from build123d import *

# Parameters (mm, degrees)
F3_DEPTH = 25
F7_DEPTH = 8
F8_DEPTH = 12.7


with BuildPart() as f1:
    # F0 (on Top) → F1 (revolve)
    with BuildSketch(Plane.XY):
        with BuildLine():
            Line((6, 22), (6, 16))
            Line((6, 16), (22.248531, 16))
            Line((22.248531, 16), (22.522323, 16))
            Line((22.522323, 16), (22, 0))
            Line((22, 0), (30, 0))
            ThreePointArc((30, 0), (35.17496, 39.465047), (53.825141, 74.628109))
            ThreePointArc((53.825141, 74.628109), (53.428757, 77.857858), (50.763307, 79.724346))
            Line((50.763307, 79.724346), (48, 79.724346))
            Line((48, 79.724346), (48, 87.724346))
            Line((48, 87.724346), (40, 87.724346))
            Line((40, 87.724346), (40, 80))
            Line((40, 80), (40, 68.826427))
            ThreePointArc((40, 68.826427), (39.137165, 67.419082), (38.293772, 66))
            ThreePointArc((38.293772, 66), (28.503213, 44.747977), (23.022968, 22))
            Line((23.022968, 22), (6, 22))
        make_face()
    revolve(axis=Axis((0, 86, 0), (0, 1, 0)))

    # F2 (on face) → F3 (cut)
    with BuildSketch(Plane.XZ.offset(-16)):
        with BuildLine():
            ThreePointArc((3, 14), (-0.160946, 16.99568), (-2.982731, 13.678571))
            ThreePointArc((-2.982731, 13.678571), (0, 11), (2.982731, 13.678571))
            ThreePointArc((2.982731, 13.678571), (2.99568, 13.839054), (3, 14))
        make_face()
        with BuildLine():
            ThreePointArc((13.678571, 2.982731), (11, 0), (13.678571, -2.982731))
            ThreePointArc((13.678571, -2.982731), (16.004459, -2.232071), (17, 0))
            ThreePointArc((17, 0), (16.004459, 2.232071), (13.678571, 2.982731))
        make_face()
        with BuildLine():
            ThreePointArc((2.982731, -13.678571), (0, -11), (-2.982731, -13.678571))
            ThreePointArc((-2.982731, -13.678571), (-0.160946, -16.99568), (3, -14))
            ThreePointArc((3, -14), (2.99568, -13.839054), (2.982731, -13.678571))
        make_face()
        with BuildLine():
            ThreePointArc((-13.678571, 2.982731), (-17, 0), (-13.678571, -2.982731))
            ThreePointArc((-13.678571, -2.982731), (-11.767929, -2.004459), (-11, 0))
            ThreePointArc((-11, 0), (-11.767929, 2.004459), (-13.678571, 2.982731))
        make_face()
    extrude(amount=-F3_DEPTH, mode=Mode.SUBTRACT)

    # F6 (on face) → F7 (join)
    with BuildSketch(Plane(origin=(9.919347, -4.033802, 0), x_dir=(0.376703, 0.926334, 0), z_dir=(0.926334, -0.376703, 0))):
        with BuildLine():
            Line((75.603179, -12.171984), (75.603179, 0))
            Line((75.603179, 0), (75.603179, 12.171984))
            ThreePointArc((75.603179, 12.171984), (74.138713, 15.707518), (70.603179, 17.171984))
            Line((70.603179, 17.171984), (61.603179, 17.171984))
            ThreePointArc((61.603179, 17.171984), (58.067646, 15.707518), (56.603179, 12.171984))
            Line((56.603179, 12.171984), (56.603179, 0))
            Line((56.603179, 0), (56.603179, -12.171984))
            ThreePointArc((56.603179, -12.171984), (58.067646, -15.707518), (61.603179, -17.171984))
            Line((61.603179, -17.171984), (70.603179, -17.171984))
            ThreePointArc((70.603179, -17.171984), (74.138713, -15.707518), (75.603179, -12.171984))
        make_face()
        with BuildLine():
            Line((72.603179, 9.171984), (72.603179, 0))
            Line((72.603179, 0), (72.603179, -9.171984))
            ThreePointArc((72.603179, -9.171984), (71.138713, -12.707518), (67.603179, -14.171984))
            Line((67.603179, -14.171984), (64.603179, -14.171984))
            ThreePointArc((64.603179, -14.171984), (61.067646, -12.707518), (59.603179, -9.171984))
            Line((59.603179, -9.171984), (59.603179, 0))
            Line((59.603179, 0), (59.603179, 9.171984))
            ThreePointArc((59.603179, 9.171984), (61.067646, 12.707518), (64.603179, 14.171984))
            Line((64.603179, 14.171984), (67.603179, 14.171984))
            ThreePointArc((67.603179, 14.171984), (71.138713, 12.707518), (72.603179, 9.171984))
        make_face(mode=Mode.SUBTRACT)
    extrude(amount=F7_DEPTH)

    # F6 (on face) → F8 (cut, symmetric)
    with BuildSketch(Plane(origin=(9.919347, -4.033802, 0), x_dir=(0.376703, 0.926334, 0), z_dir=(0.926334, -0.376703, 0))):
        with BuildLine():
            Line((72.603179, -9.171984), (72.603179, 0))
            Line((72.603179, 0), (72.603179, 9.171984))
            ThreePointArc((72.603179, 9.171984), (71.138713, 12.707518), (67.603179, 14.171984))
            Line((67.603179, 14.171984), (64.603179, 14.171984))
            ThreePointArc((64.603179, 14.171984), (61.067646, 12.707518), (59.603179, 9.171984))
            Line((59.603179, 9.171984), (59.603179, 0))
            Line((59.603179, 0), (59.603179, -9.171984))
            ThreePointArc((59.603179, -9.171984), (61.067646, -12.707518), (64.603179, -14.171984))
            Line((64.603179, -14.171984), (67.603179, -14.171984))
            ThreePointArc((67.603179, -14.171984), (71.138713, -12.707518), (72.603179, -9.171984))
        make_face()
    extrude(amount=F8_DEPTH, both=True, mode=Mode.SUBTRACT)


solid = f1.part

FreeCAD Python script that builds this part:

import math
import FreeCAD as App
import Part
import Sketcher

V = App.Vector
Q = App.Units.Quantity

doc = App.newDocument("Part")
body = doc.addObject("PartDesign::Body", "Body")

# Sketch on XY plane
sketch1 = doc.addObject("Sketcher::SketchObject", "Sketch")
body.addObject(sketch1)
sketch1.AttachmentSupport = (doc.XY_Plane, [""])
sketch1.MapMode = "FlatFace"
sketch1.addGeometry([
    Part.LineSegment(V(6, 22, 0), V(6, 16, 0)),  # 0
    Part.LineSegment(V(6, 16, 0), V(22.522323, 16, 0)),  # 1
    Part.LineSegment(V(22.522323, 16, 0), V(22, 0, 0)),  # 2
    Part.LineSegment(V(22, 0, 0), V(30, 0, 0)),  # 3
    Part.ArcOfCircle(Part.Circle(V(141.869616, 5.402611, 0), V(0, 0, 1), 111.999997), math.radians(141.823587), math.radians(182.764884)),  # 4
    Part.ArcOfCircle(Part.Circle(V(50.000001, 75.797852, 0), V(0, 0, 1), 3.999999), math.radians(-17.003835), math.radians(78.998976)),  # 5
    Part.LineSegment(V(50.763307, 79.724346, 0), V(48, 79.724346, 0)),  # 6
    Part.LineSegment(V(48, 79.724346, 0), V(48, 87.724346, 0)),  # 7
    Part.LineSegment(V(48, 87.724346, 0), V(40, 87.724346, 0)),  # 8
    Part.LineSegment(V(40, 87.724346, 0), V(40, 68.826427, 0)),  # 9
    Part.ArcOfCircle(Part.Circle(V(141.865597, 5.405053, 0), V(0, 0, 1), 119.995294), math.radians(148.093666), math.radians(149.670128)),  # 10
    Part.ArcOfCircle(Part.Circle(V(141.869592, 5.402619, 0), V(0, 0, 1), 119.999971), math.radians(149.670088), math.radians(172.049846)),  # 11
    Part.LineSegment(V(23.022968, 22, 0), V(6, 22, 0)),  # 12
], False)
sketch1.addConstraint([
    Sketcher.Constraint("Coincident", 0, 2, 1, 1),
    Sketcher.Constraint("Coincident", 1, 2, 2, 1),
    Sketcher.Constraint("Coincident", 2, 2, 3, 1),
    Sketcher.Constraint("Coincident", 3, 2, 4, 2),
    Sketcher.Constraint("Coincident", 4, 1, 5, 1),
    Sketcher.Constraint("Coincident", 5, 2, 6, 1),
    Sketcher.Constraint("Coincident", 6, 2, 7, 1),
    Sketcher.Constraint("Coincident", 7, 2, 8, 1),
    Sketcher.Constraint("Coincident", 8, 2, 9, 1),
    Sketcher.Constraint("Coincident", 9, 2, 10, 1),
    Sketcher.Constraint("Coincident", 10, 2, 11, 1),
    Sketcher.Constraint("Coincident", 11, 2, 12, 1),
    Sketcher.Constraint("Coincident", 12, 2, 0, 1),
    Sketcher.Constraint("Vertical", 0),
    Sketcher.Constraint("Horizontal", 1),
    Sketcher.Constraint("Horizontal", 3),
    Sketcher.Constraint("Horizontal", 6),
    Sketcher.Constraint("Vertical", 7),
    Sketcher.Constraint("Horizontal", 8),
    Sketcher.Constraint("Vertical", 9),
    Sketcher.Constraint("Horizontal", 12),
    Sketcher.Constraint("PointOnObject", 2, 2, -1),
    Sketcher.Constraint("Radius", 5, Q("3.999999 mm")),
    Sketcher.Constraint("DistanceX", 3, 1, 3, 2, Q("8 mm")),
    Sketcher.Constraint("DistanceX", 8, 2, 8, 1, Q("8 mm")),
    Sketcher.Constraint("DistanceY", 0, 2, 0, 1, Q("6 mm")),
    Sketcher.Constraint("DistanceY", 7, 1, 7, 2, Q("8 mm")),
    Sketcher.Constraint("DistanceX", -1, 1, 5, 3, Q("50.000001 mm")),
    Sketcher.Constraint("DistanceX", -1, 1, 0, 2, Q("6 mm")),
    Sketcher.Constraint("DistanceY", -1, 1, 0, 2, Q("16 mm")),
    Sketcher.Constraint("DistanceX", -1, 1, 2, 2, Q("22 mm")),
    Sketcher.Constraint("DistanceX", -1, 1, 6, 2, Q("48 mm")),
    Sketcher.Constraint("DistanceY", -1, 1, 10, 2, Q("66 mm")),
    Sketcher.Constraint("Radius", 11, Q("119.999971 mm")),
    Sketcher.Constraint("Radius", 4, Q("111.999997 mm")),
    Sketcher.Constraint("Radius", 10, Q("119.995294 mm")),
    Sketcher.Constraint("DistanceY", 9, 2, 9, 1, Q("18.897919 mm")),
    Sketcher.Constraint("DistanceY", 10, 3, 5, 3, Q("70.392799 mm")),
    Sketcher.Constraint("DistanceX", 1, 1, 1, 2, Q("16.522323 mm")),
    Sketcher.Constraint("DistanceX", 6, 2, 6, 1, Q("2.763307 mm")),
    Sketcher.Constraint("DistanceX", 12, 2, 12, 1, Q("17.022968 mm")),
    Sketcher.Constraint("DistanceY", -1, 1, 4, 3, Q("5.402611 mm")),
    Sketcher.Constraint("DistanceY", -1, 1, 5, 3, Q("75.797852 mm")),
])
revolution = doc.addObject("PartDesign::Revolution", "Revolution")
body.addObject(revolution)
revolution.Profile = sketch1
revolution.ReferenceAxis = (sketch1, ["V_Axis"])
revolution.Angle = 360

# Sketch on XZ plane
sketch2 = doc.addObject("Sketcher::SketchObject", "Sketch001")
body.addObject(sketch2)
sketch2.AttachmentSupport = (doc.XZ_Plane, [""])
sketch2.MapMode = "FlatFace"
sketch2.AttachmentOffset = App.Placement(V(0, 0, -16), App.Rotation())
sketch2.addGeometry([
    Part.ArcOfCircle(Part.Circle(V(0, 14, 0), V(0, 0, 1), 3), math.radians(0), math.radians(186)),  # 0
    Part.ArcOfCircle(Part.Circle(V(0, 14, 0), V(0, 0, 1), 3), math.radians(-174), math.radians(-6)),  # 1
    Part.ArcOfCircle(Part.Circle(V(0, 14, 0), V(0, 0, 1), 3), math.radians(-6.15), math.radians(0)),  # 2
    Part.ArcOfCircle(Part.Circle(V(14, 0, 0), V(0, 0, 1), 3), math.radians(96), math.radians(264)),  # 3
    Part.ArcOfCircle(Part.Circle(V(14, 0, 0), V(0, 0, 1), 3), math.radians(-96), math.radians(0)),  # 4
    Part.ArcOfCircle(Part.Circle(V(14, 0, 0), V(0, 0, 1), 3), math.radians(0), math.radians(96)),  # 5
    Part.ArcOfCircle(Part.Circle(V(0, -14, 0), V(0, 0, 1), 3), math.radians(6), math.radians(174)),  # 6
    Part.ArcOfCircle(Part.Circle(V(0, -14, 0), V(0, 0, 1), 3), math.radians(174), math.radians(360)),  # 7
    Part.ArcOfCircle(Part.Circle(V(0, -14, 0), V(0, 0, 1), 3), math.radians(0), math.radians(6.15)),  # 8
    Part.ArcOfCircle(Part.Circle(V(-14, 0, 0), V(0, 0, 1), 3), math.radians(84), math.radians(276)),  # 9
    Part.ArcOfCircle(Part.Circle(V(-14, 0, 0), V(0, 0, 1), 3), math.radians(-84), math.radians(0)),  # 10
    Part.ArcOfCircle(Part.Circle(V(-14, 0, 0), V(0, 0, 1), 3), math.radians(0), math.radians(84)),  # 11
], False)
sketch2.addConstraint([
    Sketcher.Constraint("Tangent", 0, 2, 1, 1),
    Sketcher.Constraint("Coincident", 1, 2, 2, 1),
    Sketcher.Constraint("Coincident", 2, 2, 0, 1),
    Sketcher.Constraint("Tangent", 3, 2, 4, 1),
    Sketcher.Constraint("Tangent", 4, 2, 5, 1),
    Sketcher.Constraint("Tangent", 5, 2, 3, 1),
    Sketcher.Constraint("Tangent", 6, 2, 7, 1),
    Sketcher.Constraint("Coincident", 7, 2, 8, 1),
    Sketcher.Constraint("Coincident", 8, 2, 6, 1),
    Sketcher.Constraint("Tangent", 9, 2, 10, 1),
    Sketcher.Constraint("Tangent", 10, 2, 11, 1),
    Sketcher.Constraint("Tangent", 11, 2, 9, 1),
    Sketcher.Constraint("Equal", 0, 1),
    Sketcher.Constraint("Equal", 1, 3),
    Sketcher.Constraint("Equal", 5, 6),
    Sketcher.Constraint("Equal", 6, 7),
    Sketcher.Constraint("Equal", 2, 8),
    Sketcher.Constraint("Equal", 7, 9),
    Sketcher.Constraint("Symmetric", 0, 3, 6, 3, -1, 1),
    Sketcher.Constraint("Symmetric", 3, 3, 9, 3, -1, 1),
    Sketcher.Constraint("Symmetric", 0, 2, 1, 2, -2),
    Sketcher.Constraint("Symmetric", 3, 2, 9, 2, -2),
    Sketcher.Constraint("PointOnObject", 4, 2, -1),
    Sketcher.Constraint("PointOnObject", 10, 2, -1),
    Sketcher.Constraint("Horizontal", 1, 3, 2, 2),
    Sketcher.Constraint("Horizontal", 6, 3, 7, 2),
    Sketcher.Constraint("Horizontal", 6, 2, 8, 2),
    Sketcher.Constraint("Horizontal", 5, 2, 11, 2),
    Sketcher.Constraint("Vertical", 3, 2, 5, 2),
    Sketcher.Constraint("Vertical", 0, 2, 6, 2),
    Sketcher.Constraint("Radius", 0, Q("3 mm")),
    Sketcher.Constraint("DistanceY", -1, 1, 0, 3, Q("14 mm")),
    Sketcher.Constraint("DistanceX", -1, 1, 3, 3, Q("14 mm")),
    Sketcher.Constraint("Radius", 2, Q("2.999784 mm")),
    Sketcher.Constraint("DistanceX", 0, 2, -1, 1, Q("2.982731 mm")),
    Sketcher.Constraint("DistanceX", -1, 1, 3, 2, Q("13.678571 mm")),
])
pocket1 = doc.addObject("PartDesign::Pocket", "Pocket")
body.addObject(pocket1)
pocket1.Profile = sketch2
pocket1.Length = 25

# Sketch on an angled plane
sketch3 = doc.addObject("Sketcher::SketchObject", "Sketch002")
body.addObject(sketch3)
sketch3.Placement = App.Placement(V(9.919347, -4.033802, 0), App.Rotation(V(0.376703032, 0.926334079, 0), V(0, 0, 1), V(0.926334079, -0.376703032, 0), "ZXY"))
sketch3.addGeometry([
    Part.LineSegment(V(75.6, -12.2, 0), V(75.6, 12.2, 0)),  # 0
    Part.ArcOfCircle(Part.Circle(V(70.6, 12.2, 0), V(0, 0, 1), 5), math.radians(0), math.radians(90)),  # 1
    Part.LineSegment(V(70.6, 17.2, 0), V(61.6, 17.2, 0)),  # 2
    Part.ArcOfCircle(Part.Circle(V(61.6, 12.2, 0), V(0, 0, 1), 5), math.radians(90), math.radians(180)),  # 3
    Part.LineSegment(V(56.6, 12.2, 0), V(56.6, -12.2, 0)),  # 4
    Part.ArcOfCircle(Part.Circle(V(61.6, -12.2, 0), V(0, 0, 1), 5), math.radians(-180), math.radians(-90)),  # 5
    Part.LineSegment(V(61.6, -17.2, 0), V(70.6, -17.2, 0)),  # 6
    Part.ArcOfCircle(Part.Circle(V(70.6, -12.2, 0), V(0, 0, 1), 5), math.radians(-90), math.radians(0)),  # 7
    Part.ArcOfCircle(Part.Circle(V(67.6, 9.2, 0), V(0, 0, 1), 5), math.radians(0), math.radians(90)),  # 8
    Part.LineSegment(V(72.6, 9.2, 0), V(72.6, -9.2, 0)),  # 9
    Part.ArcOfCircle(Part.Circle(V(67.6, -9.2, 0), V(0, 0, 1), 5), math.radians(-90), math.radians(0)),  # 10
    Part.LineSegment(V(67.6, -14.2, 0), V(64.6, -14.2, 0)),  # 11
    Part.ArcOfCircle(Part.Circle(V(64.6, -9.2, 0), V(0, 0, 1), 5), math.radians(-180), math.radians(-90)),  # 12
    Part.LineSegment(V(59.6, -9.2, 0), V(59.6, 9.2, 0)),  # 13
    Part.ArcOfCircle(Part.Circle(V(64.6, 9.2, 0), V(0, 0, 1), 5), math.radians(90), math.radians(180)),  # 14
    Part.LineSegment(V(64.6, 14.2, 0), V(67.6, 14.2, 0)),  # 15
], False)
sketch3.addConstraint([
    Sketcher.Constraint("Tangent", 0, 2, 1, 1),
    Sketcher.Constraint("Tangent", 1, 2, 2, 1),
    Sketcher.Constraint("Tangent", 2, 2, 3, 1),
    Sketcher.Constraint("Tangent", 3, 2, 4, 1),
    Sketcher.Constraint("Tangent", 4, 2, 5, 1),
    Sketcher.Constraint("Tangent", 5, 2, 6, 1),
    Sketcher.Constraint("Tangent", 6, 2, 7, 1),
    Sketcher.Constraint("Tangent", 7, 2, 0, 1),
    Sketcher.Constraint("Tangent", 8, 1, 9, 1),
    Sketcher.Constraint("Tangent", 9, 2, 10, 2),
    Sketcher.Constraint("Tangent", 10, 1, 11, 1),
    Sketcher.Constraint("Tangent", 11, 2, 12, 2),
    Sketcher.Constraint("Tangent", 12, 1, 13, 1),
    Sketcher.Constraint("Tangent", 13, 2, 14, 2),
    Sketcher.Constraint("Tangent", 14, 1, 15, 1),
    Sketcher.Constraint("Tangent", 15, 2, 8, 2),
    Sketcher.Constraint("Vertical", 0),
    Sketcher.Constraint("Horizontal", 2),
    Sketcher.Constraint("Vertical", 4),
    Sketcher.Constraint("Horizontal", 6),
    Sketcher.Constraint("Vertical", 9),
    Sketcher.Constraint("Horizontal", 11),
    Sketcher.Constraint("Vertical", 13),
    Sketcher.Constraint("Horizontal", 15),
    Sketcher.Constraint("Equal", 1, 3),
    Sketcher.Constraint("Equal", 3, 5),
    Sketcher.Constraint("Equal", 5, 7),
    Sketcher.Constraint("Equal", 7, 8),
    Sketcher.Constraint("Equal", 8, 10),
    Sketcher.Constraint("Equal", 10, 12),
    Sketcher.Constraint("Equal", 12, 14),
    Sketcher.Constraint("Radius", 1, Q("5 mm")),
    Sketcher.Constraint("DistanceX", 2, 2, 2, 1, Q("9 mm")),
    Sketcher.Constraint("DistanceX", 11, 2, 11, 1, Q("3 mm")),
    Sketcher.Constraint("DistanceX", 8, 3, 1, 3, Q("3 mm")),
    Sketcher.Constraint("DistanceY", 8, 3, 1, 3, Q("3 mm")),
    Sketcher.Constraint("DistanceY", 7, 3, 10, 3, Q("3 mm")),
    Sketcher.Constraint("DistanceY", 0, 1, 0, 2, Q("24.343968 mm")),
    Sketcher.Constraint("DistanceX", -1, 1, 1, 3, Q("70.603179 mm")),
    Sketcher.Constraint("DistanceY", -1, 1, 1, 3, Q("12.171984 mm")),
])
pad1 = doc.addObject("PartDesign::Pad", "Pad")
body.addObject(pad1)
pad1.Profile = sketch3
pad1.Length = 8

# Sketch on an angled plane
sketch4 = doc.addObject("Sketcher::SketchObject", "Sketch003")
body.addObject(sketch4)
sketch4.Placement = App.Placement(V(9.919347, -4.033802, 0), App.Rotation(V(0.376703032, 0.926334079, 0), V(0, 0, 1), V(0.926334079, -0.376703032, 0), "ZXY"))
sketch4.addGeometry([
    Part.LineSegment(V(72.6, -9.2, 0), V(72.6, 9.2, 0)),  # 0
    Part.ArcOfCircle(Part.Circle(V(67.6, 9.2, 0), V(0, 0, 1), 5), math.radians(0), math.radians(90)),  # 1
    Part.LineSegment(V(67.6, 14.2, 0), V(64.6, 14.2, 0)),  # 2
    Part.ArcOfCircle(Part.Circle(V(64.6, 9.2, 0), V(0, 0, 1), 5), math.radians(90), math.radians(180)),  # 3
    Part.LineSegment(V(59.6, 9.2, 0), V(59.6, -9.2, 0)),  # 4
    Part.ArcOfCircle(Part.Circle(V(64.6, -9.2, 0), V(0, 0, 1), 5), math.radians(-180), math.radians(-90)),  # 5
    Part.LineSegment(V(64.6, -14.2, 0), V(67.6, -14.2, 0)),  # 6
    Part.ArcOfCircle(Part.Circle(V(67.6, -9.2, 0), V(0, 0, 1), 5), math.radians(-90), math.radians(0)),  # 7
], False)
sketch4.addConstraint([
    Sketcher.Constraint("Tangent", 0, 2, 1, 1),
    Sketcher.Constraint("Tangent", 1, 2, 2, 1),
    Sketcher.Constraint("Tangent", 2, 2, 3, 1),
    Sketcher.Constraint("Tangent", 3, 2, 4, 1),
    Sketcher.Constraint("Tangent", 4, 2, 5, 1),
    Sketcher.Constraint("Tangent", 5, 2, 6, 1),
    Sketcher.Constraint("Tangent", 6, 2, 7, 1),
    Sketcher.Constraint("Tangent", 7, 2, 0, 1),
    Sketcher.Constraint("Vertical", 0),
    Sketcher.Constraint("Horizontal", 2),
    Sketcher.Constraint("Vertical", 4),
    Sketcher.Constraint("Horizontal", 6),
    Sketcher.Constraint("Equal", 1, 3),
    Sketcher.Constraint("Equal", 3, 5),
    Sketcher.Constraint("Equal", 5, 7),
    Sketcher.Constraint("Radius", 1, Q("5 mm")),
    Sketcher.Constraint("DistanceX", 2, 2, 2, 1, Q("3 mm")),
    Sketcher.Constraint("DistanceY", 0, 1, 0, 2, Q("18.343968 mm")),
    Sketcher.Constraint("DistanceX", -1, 1, 1, 3, Q("67.603179 mm")),
    Sketcher.Constraint("DistanceY", -1, 1, 1, 3, Q("9.171984 mm")),
])
pocket2 = doc.addObject("PartDesign::Pocket", "Pocket001")
body.addObject(pocket2)
pocket2.Profile = sketch4
pocket2.Length = 25.4
pocket2.Midplane = True

doc.recompute()
